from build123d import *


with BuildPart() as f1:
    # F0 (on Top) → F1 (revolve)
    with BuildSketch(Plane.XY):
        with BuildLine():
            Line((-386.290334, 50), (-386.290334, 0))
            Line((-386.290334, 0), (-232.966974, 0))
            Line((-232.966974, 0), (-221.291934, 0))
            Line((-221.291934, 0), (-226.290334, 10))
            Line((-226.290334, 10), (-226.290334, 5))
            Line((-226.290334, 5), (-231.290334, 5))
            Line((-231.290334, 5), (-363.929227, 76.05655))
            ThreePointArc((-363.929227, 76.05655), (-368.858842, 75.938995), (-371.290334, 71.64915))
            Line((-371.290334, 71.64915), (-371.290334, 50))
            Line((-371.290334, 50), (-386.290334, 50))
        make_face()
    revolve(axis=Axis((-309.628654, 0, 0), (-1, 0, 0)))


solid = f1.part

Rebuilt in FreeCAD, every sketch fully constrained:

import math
import FreeCAD as App
import Part
import Sketcher

doc = App.newDocument("Part")
params = doc.addObject("Spreadsheet::Sheet", "Params")
for row, (alias, value) in enumerate([
    ("sketch1_radius", "5 mm"),
    ("sketch1_width", "5 mm"),
    ("sketch1_width2", "15 mm"),
    ("sketch1_height", "50 mm"),
    ("revolution_angle", "360 deg"),
], start=1):
    params.set(f"A{row}", alias)
    params.set(f"B{row}", "=" + value)
    params.setAlias(f"B{row}", alias)

body = doc.addObject("PartDesign::Body", "Body")

# Sketch on XY plane
sketch1 = body.newObject("Sketcher::SketchObject", "Sketch")
sketch1.AttachmentSupport = (doc.getObject("XY_Plane"), [""])
sketch1.MapMode = "FlatFace"
sketch1.addGeometry([
    Part.LineSegment(App.Vector(-386.290334, 50, 0), App.Vector(-386.290334, 0, 0)),  # 0
    Part.LineSegment(App.Vector(-386.290334, 0, 0), App.Vector(-221.291934, 0, 0)),  # 1
    Part.LineSegment(App.Vector(-221.291934, 0, 0), App.Vector(-226.290334, 10, 0)),  # 2
    Part.LineSegment(App.Vector(-226.290334, 10, 0), App.Vector(-226.290334, 5, 0)),  # 3
    Part.LineSegment(App.Vector(-226.290334, 5, 0), App.Vector(-231.290334, 5, 0)),  # 4
    Part.LineSegment(App.Vector(-231.290334, 5, 0), App.Vector(-363.929227, 76.05655, 0)),  # 5
    Part.ArcOfCircle(Part.Circle(App.Vector(-366.290334, 71.649151, 0), App.Vector(0, 0, 1), 5), math.radians(61.821406), math.radians(180.000006)),  # 6
    Part.LineSegment(App.Vector(-371.290334, 71.64915, 0), App.Vector(-371.290334, 50, 0)),  # 7
    Part.LineSegment(App.Vector(-371.290334, 50, 0), App.Vector(-386.290334, 50, 0)),  # 8
], False)
sketch1.addConstraint([
    Sketcher.Constraint("Coincident", 0, 2, 1, 1),
    Sketcher.Constraint("Coincident", 1, 2, 2, 1),
    Sketcher.Constraint("Coincident", 2, 2, 3, 1),
    Sketcher.Constraint("Coincident", 3, 2, 4, 1),
    Sketcher.Constraint("Coincident", 4, 2, 5, 1),
    Sketcher.Constraint("Tangent", 5, 2, 6, 1),
    Sketcher.Constraint("Tangent", 6, 2, 7, 1),
    Sketcher.Constraint("Coincident", 7, 2, 8, 1),
    Sketcher.Constraint("Coincident", 8, 2, 0, 1),
    Sketcher.Constraint("Vertical", 0),
    Sketcher.Constraint("Horizontal", 1),
    Sketcher.Constraint("Vertical", 3),
    Sketcher.Constraint("Horizontal", 4),
    Sketcher.Constraint("Vertical", 7),
    Sketcher.Constraint("Horizontal", 8),
    Sketcher.Constraint("PointOnObject", 0, 2, -1),
    Sketcher.Constraint("Equal", 4, 3),
    Sketcher.Constraint("Radius", 6, 5.0),
    Sketcher.Constraint("DistanceX", 4, 2, 4, 1, 5.0),
    Sketcher.Constraint("DistanceX", 8, 2, 8, 1, 15.0),
    Sketcher.Constraint("DistanceY", 0, 2, 0, 1, 50.0),
    Sketcher.Constraint("DistanceY", -1, 1, 2, 2, 10.0),
    Sketcher.Constraint("DistanceX", 6, 3, 2, 2, 140.0),
    Sketcher.Constraint("DistanceX", 1, 1, 1, 2, 164.9984),
    Sketcher.Constraint("DistanceY", 7, 2, 7, 1, 21.64915),
    Sketcher.Constraint("DistanceX", 6, 3, -1, 1, 366.290334),
])
sketch1.setExpression("Constraints[17]", "Params.sketch1_radius")
sketch1.setExpression("Constraints[18]", "Params.sketch1_width")
sketch1.setExpression("Constraints[19]", "Params.sketch1_width2")
sketch1.setExpression("Constraints[20]", "Params.sketch1_height")
revolution = body.newObject("PartDesign::Revolution", "Revolution")
revolution.Profile = sketch1
revolution.ReferenceAxis = (sketch1, ["H_Axis"])
revolution.setExpression("Angle", "Params.revolution_angle")

doc.recompute()
